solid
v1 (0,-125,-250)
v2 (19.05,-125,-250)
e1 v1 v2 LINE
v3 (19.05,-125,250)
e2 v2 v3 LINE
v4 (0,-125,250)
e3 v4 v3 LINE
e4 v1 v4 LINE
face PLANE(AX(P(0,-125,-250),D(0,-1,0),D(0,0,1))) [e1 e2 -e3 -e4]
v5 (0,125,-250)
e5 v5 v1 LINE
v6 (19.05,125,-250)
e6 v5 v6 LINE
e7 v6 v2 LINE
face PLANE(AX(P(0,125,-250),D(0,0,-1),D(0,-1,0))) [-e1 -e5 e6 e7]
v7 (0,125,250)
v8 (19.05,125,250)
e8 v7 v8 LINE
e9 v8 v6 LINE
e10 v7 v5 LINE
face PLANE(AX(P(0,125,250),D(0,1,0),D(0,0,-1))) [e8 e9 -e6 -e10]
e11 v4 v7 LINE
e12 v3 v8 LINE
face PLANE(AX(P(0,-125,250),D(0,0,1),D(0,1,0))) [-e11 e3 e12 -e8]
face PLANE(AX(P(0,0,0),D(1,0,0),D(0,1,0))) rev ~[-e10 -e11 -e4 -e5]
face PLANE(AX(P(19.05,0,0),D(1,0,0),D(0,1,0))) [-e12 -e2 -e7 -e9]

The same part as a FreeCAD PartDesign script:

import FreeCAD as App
import Part
import Sketcher
from FreeCAD import Vector
Q = App.Units.Quantity

doc = App.newDocument("Part")
body = doc.addObject("PartDesign::Body", "Body")

sketch1 = body.newObject("Sketcher::SketchObject", "Sketch")
sketch1.AttachmentSupport = (doc.getObject("YZ_Plane"), [""])
sketch1.MapMode = "FlatFace"
sketch1.addGeometry([
    Part.LineSegment(Vector(125, 250, 0), Vector(-125, 250, 0)),
    Part.LineSegment(Vector(-125, 250, 0), Vector(-125, -250, 0)),
    Part.LineSegment(Vector(-125, -250, 0), Vector(125, -250, 0)),
    Part.LineSegment(Vector(125, -250, 0), Vector(125, 250, 0)),
], False)
sketch1.addConstraint([
    Sketcher.Constraint("Coincident", 0, 2, 1, 1),
    Sketcher.Constraint("Coincident", 1, 2, 2, 1),
    Sketcher.Constraint("Coincident", 2, 2, 3, 1),
    Sketcher.Constraint("Coincident", 3, 2, 0, 1),
    Sketcher.Constraint("Horizontal", 0),
    Sketcher.Constraint("Vertical", 1),
    Sketcher.Constraint("Horizontal", 2),
    Sketcher.Constraint("Vertical", 3),
    Sketcher.Constraint("Symmetric", 0, 2, 2, 2, -1, 1),
    Sketcher.Constraint("DistanceX", 0, 2, 0, 1, Q("250 mm")),
    Sketcher.Constraint("DistanceY", 1, 2, 1, 1, Q("500 mm")),
])
pad1 = body.newObject("PartDesign::Pad", "Pad")
pad1.Profile = sketch1
pad1.Length = 19.05

doc.recompute()
